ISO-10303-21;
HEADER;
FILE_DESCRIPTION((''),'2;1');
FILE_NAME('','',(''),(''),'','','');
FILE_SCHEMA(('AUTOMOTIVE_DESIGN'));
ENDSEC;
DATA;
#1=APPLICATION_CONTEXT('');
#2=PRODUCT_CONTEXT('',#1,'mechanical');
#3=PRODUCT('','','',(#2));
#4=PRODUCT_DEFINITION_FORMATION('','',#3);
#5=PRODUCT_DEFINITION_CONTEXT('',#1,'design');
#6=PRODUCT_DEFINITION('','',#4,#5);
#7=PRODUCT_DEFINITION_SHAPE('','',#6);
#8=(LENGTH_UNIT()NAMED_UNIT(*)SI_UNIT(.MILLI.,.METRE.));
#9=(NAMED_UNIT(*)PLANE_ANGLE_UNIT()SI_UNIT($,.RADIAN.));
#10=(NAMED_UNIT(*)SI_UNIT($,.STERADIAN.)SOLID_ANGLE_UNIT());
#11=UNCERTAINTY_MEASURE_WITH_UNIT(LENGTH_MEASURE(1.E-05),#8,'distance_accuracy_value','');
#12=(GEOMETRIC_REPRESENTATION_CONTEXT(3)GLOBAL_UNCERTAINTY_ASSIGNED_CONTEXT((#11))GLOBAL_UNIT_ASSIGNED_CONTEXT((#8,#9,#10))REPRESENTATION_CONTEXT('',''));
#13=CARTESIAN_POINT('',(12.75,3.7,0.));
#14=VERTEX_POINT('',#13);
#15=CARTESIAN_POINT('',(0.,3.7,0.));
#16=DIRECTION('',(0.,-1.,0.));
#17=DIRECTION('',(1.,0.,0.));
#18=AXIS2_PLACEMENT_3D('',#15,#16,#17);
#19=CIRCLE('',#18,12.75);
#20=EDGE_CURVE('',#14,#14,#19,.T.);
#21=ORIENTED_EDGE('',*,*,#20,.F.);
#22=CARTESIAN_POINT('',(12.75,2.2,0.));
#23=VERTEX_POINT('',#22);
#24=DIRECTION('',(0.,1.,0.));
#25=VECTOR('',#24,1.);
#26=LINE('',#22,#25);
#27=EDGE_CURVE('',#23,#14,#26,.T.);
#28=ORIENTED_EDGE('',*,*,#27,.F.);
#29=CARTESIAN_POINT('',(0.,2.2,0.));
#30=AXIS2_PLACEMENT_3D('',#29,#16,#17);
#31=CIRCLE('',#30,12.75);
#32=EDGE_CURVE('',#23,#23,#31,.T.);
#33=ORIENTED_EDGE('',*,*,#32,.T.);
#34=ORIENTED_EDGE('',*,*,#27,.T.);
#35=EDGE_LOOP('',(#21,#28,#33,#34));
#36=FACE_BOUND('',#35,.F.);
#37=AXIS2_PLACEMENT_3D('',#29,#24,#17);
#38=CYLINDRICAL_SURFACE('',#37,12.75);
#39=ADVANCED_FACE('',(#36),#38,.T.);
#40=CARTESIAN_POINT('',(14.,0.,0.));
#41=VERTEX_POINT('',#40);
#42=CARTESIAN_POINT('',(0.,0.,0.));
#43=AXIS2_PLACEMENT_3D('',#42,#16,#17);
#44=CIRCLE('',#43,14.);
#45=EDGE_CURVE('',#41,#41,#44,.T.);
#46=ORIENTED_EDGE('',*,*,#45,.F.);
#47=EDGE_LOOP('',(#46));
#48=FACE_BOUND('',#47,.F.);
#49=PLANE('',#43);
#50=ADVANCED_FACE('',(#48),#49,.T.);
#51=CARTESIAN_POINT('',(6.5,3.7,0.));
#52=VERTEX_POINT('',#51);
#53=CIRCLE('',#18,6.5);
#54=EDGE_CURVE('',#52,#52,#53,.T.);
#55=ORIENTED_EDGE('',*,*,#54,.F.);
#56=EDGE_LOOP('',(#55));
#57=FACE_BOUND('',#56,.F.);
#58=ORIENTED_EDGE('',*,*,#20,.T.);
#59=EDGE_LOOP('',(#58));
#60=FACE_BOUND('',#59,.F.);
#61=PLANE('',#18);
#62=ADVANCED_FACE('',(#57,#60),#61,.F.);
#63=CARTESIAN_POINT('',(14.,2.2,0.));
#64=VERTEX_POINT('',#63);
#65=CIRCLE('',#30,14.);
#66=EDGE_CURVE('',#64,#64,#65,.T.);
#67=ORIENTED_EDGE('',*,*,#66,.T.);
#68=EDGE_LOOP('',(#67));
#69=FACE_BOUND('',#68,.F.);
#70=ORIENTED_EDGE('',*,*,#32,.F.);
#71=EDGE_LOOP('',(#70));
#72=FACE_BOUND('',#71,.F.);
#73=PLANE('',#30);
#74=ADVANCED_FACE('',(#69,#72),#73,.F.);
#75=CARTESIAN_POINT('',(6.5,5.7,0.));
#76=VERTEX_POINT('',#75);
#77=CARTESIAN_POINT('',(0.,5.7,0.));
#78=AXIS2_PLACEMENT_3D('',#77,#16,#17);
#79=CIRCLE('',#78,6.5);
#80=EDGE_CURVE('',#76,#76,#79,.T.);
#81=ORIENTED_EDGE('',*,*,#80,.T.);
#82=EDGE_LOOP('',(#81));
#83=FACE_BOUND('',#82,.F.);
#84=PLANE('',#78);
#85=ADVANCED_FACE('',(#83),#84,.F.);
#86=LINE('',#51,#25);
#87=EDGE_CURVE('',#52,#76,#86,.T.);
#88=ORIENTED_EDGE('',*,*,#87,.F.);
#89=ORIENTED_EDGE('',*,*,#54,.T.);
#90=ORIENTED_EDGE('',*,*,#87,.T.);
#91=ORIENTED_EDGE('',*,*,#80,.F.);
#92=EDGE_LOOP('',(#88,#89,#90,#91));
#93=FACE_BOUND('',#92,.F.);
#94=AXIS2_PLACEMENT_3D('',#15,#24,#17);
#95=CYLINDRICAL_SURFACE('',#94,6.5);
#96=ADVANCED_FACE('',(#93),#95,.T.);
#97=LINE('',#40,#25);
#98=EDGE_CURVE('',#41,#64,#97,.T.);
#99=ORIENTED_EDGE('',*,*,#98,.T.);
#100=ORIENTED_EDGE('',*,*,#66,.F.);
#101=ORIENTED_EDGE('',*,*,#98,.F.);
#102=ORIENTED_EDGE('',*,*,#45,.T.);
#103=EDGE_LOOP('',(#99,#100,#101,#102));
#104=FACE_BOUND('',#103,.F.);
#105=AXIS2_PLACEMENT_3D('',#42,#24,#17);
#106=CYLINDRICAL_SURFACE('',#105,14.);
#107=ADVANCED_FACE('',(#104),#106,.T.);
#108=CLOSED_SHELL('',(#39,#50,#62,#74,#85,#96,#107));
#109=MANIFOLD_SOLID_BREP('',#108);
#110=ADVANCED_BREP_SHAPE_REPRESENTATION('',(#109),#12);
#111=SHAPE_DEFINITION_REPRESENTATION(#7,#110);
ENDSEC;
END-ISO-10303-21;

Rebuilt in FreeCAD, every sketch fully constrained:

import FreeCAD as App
import Part
import Sketcher

V = App.Vector
Q = App.Units.Quantity

doc = App.newDocument("Part")
body = doc.addObject("PartDesign::Body", "Body")

# Sketch on XY plane
sketch1 = doc.addObject("Sketcher::SketchObject", "Sketch")
body.addObject(sketch1)
sketch1.AttachmentSupport = (doc.XY_Plane, [""])
sketch1.MapMode = "FlatFace"
sketch1.addGeometry([
    Part.LineSegment(V(0, 5.7, 0), V(0, 0, 0)),  # 0
    Part.LineSegment(V(0, 0, 0), V(14, 0, 0)),  # 1
    Part.LineSegment(V(14, 0, 0), V(14, 2.2, 0)),  # 2
    Part.LineSegment(V(14, 2.2, 0), V(12.8, 2.2, 0)),  # 3
    Part.LineSegment(V(12.8, 2.2, 0), V(12.8, 3.7, 0)),  # 4
    Part.LineSegment(V(12.8, 3.7, 0), V(6.5, 3.7, 0)),  # 5
    Part.LineSegment(V(6.5, 3.7, 0), V(6.5, 5.7, 0)),  # 6
    Part.LineSegment(V(6.5, 5.7, 0), V(0, 5.7, 0)),  # 7
], False)
sketch1.addConstraint([
    Sketcher.Constraint("Coincident", 0, 2, 1, 1),
    Sketcher.Constraint("Coincident", 1, 2, 2, 1),
    Sketcher.Constraint("Coincident", 2, 2, 3, 1),
    Sketcher.Constraint("Coincident", 3, 2, 4, 1),
    Sketcher.Constraint("Coincident", 4, 2, 5, 1),
    Sketcher.Constraint("Coincident", 5, 2, 6, 1),
    Sketcher.Constraint("Coincident", 6, 2, 7, 1),
    Sketcher.Constraint("Coincident", 7, 2, 0, 1),
    Sketcher.Constraint("Vertical", 0),
    Sketcher.Constraint("Horizontal", 1),
    Sketcher.Constraint("Vertical", 2),
    Sketcher.Constraint("Horizontal", 3),
    Sketcher.Constraint("Vertical", 4),
    Sketcher.Constraint("Horizontal", 5),
    Sketcher.Constraint("Vertical", 6),
    Sketcher.Constraint("Horizontal", 7),
    Sketcher.Constraint("Coincident", 0, 2, -1, 1),
    Sketcher.Constraint("DistanceY", 6, 1, 6, 2, Q("2 mm")),
    Sketcher.Constraint("DistanceY", 2, 1, 2, 2, Q("2.2 mm")),
    Sketcher.Constraint("DistanceY", 4, 1, 4, 2, Q("1.5 mm")),
    Sketcher.Constraint("DistanceX", 1, 1, 1, 2, Q("14 mm")),
    Sketcher.Constraint("DistanceX", 7, 2, 7, 1, Q("6.5 mm")),
    Sketcher.Constraint("DistanceX", 3, 2, 3, 1, Q("1.25 mm")),
])
revolution = doc.addObject("PartDesign::Revolution", "Revolution")
body.addObject(revolution)
revolution.Profile = sketch1
revolution.ReferenceAxis = (sketch1, ["V_Axis"])
revolution.Angle = 360

doc.recompute()
